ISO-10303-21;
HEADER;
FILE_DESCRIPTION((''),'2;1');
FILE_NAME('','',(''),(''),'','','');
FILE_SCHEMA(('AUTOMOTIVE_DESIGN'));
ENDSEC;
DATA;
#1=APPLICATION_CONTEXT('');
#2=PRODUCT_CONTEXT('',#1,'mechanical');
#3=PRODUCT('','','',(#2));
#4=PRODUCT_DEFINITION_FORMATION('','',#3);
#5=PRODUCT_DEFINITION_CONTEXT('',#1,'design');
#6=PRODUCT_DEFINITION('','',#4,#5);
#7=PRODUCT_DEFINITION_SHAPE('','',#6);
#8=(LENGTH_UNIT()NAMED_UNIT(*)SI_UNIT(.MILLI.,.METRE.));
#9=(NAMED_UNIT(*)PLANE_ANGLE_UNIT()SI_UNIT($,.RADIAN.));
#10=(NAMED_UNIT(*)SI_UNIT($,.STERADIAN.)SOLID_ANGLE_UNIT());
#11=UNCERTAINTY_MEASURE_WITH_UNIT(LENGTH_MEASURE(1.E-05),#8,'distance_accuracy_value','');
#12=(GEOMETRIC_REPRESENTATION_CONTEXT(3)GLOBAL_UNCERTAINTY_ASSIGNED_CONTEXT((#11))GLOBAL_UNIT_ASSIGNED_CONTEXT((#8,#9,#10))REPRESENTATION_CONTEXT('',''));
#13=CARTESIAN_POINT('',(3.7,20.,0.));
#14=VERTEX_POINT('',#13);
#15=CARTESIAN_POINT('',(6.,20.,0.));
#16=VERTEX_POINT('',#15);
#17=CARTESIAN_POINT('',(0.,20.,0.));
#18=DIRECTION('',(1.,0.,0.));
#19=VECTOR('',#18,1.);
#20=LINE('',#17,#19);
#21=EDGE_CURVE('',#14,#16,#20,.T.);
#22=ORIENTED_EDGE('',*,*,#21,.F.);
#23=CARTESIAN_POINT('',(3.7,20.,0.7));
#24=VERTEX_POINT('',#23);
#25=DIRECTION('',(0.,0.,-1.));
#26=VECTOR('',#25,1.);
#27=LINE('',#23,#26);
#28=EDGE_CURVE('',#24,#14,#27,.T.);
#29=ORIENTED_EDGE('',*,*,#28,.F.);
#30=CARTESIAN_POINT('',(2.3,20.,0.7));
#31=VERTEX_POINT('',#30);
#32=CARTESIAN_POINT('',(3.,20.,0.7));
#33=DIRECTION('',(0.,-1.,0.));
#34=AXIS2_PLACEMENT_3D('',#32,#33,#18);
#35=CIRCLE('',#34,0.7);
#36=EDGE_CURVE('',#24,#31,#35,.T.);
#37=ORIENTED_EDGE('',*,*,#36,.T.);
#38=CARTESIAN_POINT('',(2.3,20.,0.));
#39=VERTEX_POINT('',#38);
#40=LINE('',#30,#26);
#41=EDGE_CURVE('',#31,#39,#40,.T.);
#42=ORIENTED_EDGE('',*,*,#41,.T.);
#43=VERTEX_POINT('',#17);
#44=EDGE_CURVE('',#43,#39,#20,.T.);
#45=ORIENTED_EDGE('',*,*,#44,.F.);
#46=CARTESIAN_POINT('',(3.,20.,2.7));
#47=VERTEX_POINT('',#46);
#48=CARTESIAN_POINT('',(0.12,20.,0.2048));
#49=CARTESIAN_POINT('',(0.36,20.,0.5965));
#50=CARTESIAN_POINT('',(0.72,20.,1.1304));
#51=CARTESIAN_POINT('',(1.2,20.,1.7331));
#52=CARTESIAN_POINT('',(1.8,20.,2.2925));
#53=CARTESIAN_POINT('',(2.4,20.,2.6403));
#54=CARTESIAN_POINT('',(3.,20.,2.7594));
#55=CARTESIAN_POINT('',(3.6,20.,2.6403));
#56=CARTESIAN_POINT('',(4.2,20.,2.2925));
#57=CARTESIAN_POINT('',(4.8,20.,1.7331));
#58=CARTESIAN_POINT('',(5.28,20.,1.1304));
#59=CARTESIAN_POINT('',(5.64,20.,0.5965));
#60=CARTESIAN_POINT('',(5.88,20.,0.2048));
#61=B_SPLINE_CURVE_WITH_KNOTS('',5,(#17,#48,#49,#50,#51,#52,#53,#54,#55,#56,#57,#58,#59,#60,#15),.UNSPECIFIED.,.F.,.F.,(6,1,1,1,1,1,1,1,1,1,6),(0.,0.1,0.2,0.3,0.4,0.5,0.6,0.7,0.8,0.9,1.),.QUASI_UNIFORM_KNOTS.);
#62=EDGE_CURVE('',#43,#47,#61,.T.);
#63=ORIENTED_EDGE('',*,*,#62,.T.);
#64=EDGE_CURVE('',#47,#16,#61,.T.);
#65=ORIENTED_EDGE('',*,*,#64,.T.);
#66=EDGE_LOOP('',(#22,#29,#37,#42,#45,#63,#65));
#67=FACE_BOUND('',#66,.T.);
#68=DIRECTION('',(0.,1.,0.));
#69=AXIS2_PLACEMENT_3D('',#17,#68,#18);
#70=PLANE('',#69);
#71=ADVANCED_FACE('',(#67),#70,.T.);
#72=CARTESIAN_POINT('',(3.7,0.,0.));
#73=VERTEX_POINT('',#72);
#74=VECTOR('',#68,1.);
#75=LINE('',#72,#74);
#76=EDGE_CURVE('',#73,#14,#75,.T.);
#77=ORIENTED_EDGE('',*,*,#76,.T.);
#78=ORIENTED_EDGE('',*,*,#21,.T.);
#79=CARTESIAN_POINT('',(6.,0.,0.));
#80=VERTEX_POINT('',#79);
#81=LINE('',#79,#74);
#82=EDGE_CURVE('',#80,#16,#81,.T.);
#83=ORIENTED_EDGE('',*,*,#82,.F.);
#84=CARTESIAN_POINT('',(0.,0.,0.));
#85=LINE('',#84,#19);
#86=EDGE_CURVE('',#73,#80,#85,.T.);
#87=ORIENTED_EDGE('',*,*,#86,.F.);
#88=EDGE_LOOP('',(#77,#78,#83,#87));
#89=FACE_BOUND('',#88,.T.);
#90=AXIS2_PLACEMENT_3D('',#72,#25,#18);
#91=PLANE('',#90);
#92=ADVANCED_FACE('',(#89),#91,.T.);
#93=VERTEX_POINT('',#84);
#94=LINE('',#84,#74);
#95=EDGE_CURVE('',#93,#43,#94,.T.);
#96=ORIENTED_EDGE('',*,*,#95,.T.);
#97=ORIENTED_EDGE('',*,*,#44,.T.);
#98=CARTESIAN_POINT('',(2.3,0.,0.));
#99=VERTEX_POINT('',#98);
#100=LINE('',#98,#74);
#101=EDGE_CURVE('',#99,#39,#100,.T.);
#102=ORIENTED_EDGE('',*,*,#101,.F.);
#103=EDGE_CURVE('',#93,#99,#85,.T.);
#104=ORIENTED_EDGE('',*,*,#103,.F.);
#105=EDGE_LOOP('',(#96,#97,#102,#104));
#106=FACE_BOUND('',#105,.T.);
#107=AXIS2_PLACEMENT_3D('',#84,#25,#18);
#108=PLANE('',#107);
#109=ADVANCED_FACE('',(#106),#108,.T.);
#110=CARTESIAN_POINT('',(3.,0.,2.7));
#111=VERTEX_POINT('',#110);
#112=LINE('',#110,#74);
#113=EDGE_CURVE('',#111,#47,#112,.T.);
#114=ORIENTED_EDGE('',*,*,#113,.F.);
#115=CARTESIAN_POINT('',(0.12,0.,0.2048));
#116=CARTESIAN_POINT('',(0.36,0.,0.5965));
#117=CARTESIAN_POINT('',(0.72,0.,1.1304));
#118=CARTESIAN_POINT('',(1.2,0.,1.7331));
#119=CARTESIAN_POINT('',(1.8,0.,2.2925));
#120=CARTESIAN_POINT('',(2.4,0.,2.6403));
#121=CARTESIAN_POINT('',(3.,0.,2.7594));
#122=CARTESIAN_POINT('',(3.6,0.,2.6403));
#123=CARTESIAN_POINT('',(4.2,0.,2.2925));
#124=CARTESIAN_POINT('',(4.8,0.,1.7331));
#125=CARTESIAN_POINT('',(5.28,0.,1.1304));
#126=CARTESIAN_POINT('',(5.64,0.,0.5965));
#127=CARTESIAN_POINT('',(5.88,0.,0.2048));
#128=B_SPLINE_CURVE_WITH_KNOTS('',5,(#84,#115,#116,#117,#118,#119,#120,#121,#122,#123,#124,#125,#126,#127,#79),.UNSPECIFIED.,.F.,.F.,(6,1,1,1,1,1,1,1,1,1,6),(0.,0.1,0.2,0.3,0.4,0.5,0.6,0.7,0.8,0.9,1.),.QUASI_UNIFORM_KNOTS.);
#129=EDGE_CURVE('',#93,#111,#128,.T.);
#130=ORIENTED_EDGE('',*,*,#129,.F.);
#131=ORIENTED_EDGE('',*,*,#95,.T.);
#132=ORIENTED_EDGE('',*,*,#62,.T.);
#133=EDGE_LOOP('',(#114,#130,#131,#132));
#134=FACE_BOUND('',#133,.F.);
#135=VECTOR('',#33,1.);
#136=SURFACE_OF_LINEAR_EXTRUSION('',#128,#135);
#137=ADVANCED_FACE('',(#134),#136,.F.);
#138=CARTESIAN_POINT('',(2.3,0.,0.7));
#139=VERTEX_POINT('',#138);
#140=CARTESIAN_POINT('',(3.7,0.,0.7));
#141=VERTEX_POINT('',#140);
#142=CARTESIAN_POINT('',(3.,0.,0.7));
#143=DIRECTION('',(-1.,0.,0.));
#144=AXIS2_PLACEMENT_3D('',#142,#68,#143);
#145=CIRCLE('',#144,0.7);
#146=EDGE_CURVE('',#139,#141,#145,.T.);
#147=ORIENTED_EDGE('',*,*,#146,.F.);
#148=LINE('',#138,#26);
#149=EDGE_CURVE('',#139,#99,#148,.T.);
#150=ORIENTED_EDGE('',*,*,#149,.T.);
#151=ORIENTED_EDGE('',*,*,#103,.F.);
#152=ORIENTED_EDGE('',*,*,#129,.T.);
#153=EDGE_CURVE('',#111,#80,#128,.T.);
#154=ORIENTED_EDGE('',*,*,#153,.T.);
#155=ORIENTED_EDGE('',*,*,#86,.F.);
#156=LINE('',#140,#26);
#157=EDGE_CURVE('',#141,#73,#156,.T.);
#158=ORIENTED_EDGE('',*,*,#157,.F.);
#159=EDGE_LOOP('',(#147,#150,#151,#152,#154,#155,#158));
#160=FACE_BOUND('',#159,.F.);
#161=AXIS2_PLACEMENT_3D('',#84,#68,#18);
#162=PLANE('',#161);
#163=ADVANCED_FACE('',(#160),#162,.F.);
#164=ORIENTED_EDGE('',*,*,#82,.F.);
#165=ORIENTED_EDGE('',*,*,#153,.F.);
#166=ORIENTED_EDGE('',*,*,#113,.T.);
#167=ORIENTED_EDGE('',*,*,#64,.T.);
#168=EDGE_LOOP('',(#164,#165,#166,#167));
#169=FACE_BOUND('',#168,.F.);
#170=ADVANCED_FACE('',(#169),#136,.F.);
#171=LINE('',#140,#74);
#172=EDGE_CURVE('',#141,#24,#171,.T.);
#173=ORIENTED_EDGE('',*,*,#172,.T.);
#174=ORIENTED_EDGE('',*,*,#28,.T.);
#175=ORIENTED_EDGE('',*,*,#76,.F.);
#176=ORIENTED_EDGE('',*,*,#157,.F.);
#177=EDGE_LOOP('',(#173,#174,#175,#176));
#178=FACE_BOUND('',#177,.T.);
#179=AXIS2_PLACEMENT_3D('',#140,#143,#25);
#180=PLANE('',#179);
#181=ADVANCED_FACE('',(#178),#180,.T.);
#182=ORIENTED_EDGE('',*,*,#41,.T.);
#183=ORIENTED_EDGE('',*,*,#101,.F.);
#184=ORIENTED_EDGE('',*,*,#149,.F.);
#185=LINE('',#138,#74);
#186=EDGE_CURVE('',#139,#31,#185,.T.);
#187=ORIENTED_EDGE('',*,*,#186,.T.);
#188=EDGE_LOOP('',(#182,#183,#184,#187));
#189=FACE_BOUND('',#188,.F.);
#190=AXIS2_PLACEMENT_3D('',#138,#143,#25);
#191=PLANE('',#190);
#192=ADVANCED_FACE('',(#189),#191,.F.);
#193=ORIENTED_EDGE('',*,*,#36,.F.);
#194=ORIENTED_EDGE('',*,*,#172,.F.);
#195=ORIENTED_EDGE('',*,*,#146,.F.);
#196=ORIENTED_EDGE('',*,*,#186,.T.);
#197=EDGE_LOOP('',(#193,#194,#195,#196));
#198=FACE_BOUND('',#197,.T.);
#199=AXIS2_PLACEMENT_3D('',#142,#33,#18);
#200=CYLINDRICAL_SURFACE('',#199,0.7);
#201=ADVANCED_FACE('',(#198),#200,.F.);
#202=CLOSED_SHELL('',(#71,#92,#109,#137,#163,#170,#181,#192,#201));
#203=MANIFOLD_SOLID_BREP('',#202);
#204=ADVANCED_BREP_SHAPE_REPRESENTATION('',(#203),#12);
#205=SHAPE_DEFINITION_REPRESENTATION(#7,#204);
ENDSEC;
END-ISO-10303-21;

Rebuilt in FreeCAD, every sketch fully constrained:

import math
import FreeCAD as App
import Part
import Sketcher

V = App.Vector
Q = App.Units.Quantity

doc = App.newDocument("Part")
body = doc.addObject("PartDesign::Body", "Body")

# Sketch on XZ plane
sketch1 = body.newObject("Sketcher::SketchObject", "Sketch")
sketch1.AttachmentSupport = (doc.getObject("XZ_Plane"), [""])
sketch1.MapMode = "FlatFace"
sketch1.addGeometry(Part.LineSegment(V(2.3, 0, 0), V(0, 0, 0)), False)
sketch1.addGeometry(Part.BSplineCurve([V(0, 0, 0), V(0.12, 0.2048, 0), V(0.36, 0.5965, 0), V(0.72, 1.1304, 0), V(1.2, 1.7331, 0), V(1.8, 2.2925, 0), V(2.28, 2.57074, 0), V(2.64, 2.676505, 0), V(2.88, 2.700008, 0), V(3, 2.700008, 0)], [6, 1, 1, 1, 1, 6], [0, 0.1, 0.2, 0.3, 0.4, 0.5], False, 5, [1, 1, 1, 1, 1, 1, 1, 1, 1, 1], False), False)
sketch1.addGeometry(Part.BSplineCurve([V(3, 2.700008, 0), V(3.12, 2.700008, 0), V(3.36, 2.676505, 0), V(3.72, 2.57074, 0), V(4.2, 2.2925, 0), V(4.8, 1.7331, 0), V(5.28, 1.1304, 0), V(5.64, 0.5965, 0), V(5.88, 0.2048, 0), V(6, 0, 0)], [6, 1, 1, 1, 1, 6], [0.5, 0.6, 0.7, 0.8, 0.9, 1], False, 5, [1, 1, 1, 1, 1, 1, 1, 1, 1, 1], False), False)
sketch1.addGeometry(Part.LineSegment(V(6, 0, 0), V(3.7, 0, 0)), False)
sketch1.addGeometry(Part.LineSegment(V(3.7, 0, 0), V(3.7, 0.7, 0)), False)
sketch1.addGeometry(Part.ArcOfCircle(Part.Circle(V(3, 0.7, 0), V(0, 0, 1), 0.7), math.radians(0), math.radians(180)), False)
sketch1.addGeometry(Part.LineSegment(V(2.3, 0.7, 0), V(2.3, 0, 0)), False)
sketch1.addConstraint(Sketcher.Constraint("Block", 1))
sketch1.addConstraint(Sketcher.Constraint("Block", 2))
sketch1.addConstraint(Sketcher.Constraint("Coincident", 0, 2, 1, 1))
sketch1.addConstraint(Sketcher.Constraint("Coincident", 2, 2, 3, 1))
sketch1.addConstraint(Sketcher.Constraint("Coincident", 3, 2, 4, 1))
sketch1.addConstraint(Sketcher.Constraint("Tangent", 4, 2, 5, 1))
sketch1.addConstraint(Sketcher.Constraint("Tangent", 5, 2, 6, 1))
sketch1.addConstraint(Sketcher.Constraint("Coincident", 6, 2, 0, 1))
sketch1.addConstraint(Sketcher.Constraint("Horizontal", 0))
sketch1.addConstraint(Sketcher.Constraint("Horizontal", 3))
sketch1.addConstraint(Sketcher.Constraint("Vertical", 4))
sketch1.addConstraint(Sketcher.Constraint("Vertical", 6))
sketch1.addConstraint(Sketcher.Constraint("Equal", 0, 3))
sketch1.addConstraint(Sketcher.Constraint("Radius", 5, Q("0.7 mm")))
sketch1.addConstraint(Sketcher.Constraint("DistanceY", 4, 1, 4, 2, Q("0.7 mm")))
pad1 = body.newObject("PartDesign::Pad", "Pad")
pad1.Profile = sketch1
pad1.Length = 20
pad1.Reversed = True

doc.recompute()
